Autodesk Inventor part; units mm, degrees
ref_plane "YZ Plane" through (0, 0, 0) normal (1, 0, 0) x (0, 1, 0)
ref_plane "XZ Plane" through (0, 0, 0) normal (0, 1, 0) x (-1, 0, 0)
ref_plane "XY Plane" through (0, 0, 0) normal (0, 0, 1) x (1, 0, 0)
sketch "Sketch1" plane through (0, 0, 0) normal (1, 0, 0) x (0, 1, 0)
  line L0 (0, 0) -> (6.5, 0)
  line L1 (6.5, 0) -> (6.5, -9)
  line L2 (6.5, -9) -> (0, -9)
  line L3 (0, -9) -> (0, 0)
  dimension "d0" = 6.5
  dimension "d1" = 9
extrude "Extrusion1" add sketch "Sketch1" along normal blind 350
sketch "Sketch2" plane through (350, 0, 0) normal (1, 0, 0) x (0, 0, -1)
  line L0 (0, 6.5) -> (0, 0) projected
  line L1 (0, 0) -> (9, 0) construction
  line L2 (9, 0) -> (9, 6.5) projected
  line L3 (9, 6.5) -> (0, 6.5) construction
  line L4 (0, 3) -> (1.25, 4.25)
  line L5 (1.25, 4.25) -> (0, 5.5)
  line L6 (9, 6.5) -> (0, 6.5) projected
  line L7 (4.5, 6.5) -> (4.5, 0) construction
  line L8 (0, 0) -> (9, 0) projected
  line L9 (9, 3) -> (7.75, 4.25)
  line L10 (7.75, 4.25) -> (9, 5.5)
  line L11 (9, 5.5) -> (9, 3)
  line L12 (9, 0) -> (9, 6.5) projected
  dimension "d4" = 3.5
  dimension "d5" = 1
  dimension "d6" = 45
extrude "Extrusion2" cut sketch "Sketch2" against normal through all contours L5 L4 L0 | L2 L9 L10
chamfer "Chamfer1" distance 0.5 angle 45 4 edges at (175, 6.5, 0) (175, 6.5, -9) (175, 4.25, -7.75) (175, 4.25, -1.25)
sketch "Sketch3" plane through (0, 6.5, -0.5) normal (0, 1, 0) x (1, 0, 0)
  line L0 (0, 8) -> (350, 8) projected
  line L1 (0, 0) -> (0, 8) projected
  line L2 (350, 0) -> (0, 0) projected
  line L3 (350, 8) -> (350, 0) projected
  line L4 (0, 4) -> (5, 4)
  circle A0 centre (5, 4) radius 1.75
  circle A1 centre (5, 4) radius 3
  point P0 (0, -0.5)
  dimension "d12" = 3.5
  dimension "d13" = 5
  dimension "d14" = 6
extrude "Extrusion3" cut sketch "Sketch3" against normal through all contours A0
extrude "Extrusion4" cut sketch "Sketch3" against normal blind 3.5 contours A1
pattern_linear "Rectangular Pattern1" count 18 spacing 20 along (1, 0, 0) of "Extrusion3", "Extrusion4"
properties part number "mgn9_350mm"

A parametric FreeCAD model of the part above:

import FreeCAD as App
import Part
import Sketcher


def edges_at(feature, points):
    """Names of the edges that pass closest to the given points."""
    edges = feature.Shape.Edges
    near = lambda p: min(range(len(edges)), key=lambda i: edges[i].distToShape(Part.Vertex(*p))[0])
    return sorted({f"Edge{near(p) + 1}" for p in points})

doc = App.newDocument("Part")
body = doc.addObject("PartDesign::Body", "Body")

# Sketch on YZ plane
sketch1 = body.newObject("Sketcher::SketchObject", "Sketch")
sketch1.AttachmentSupport = (doc.getObject("YZ_Plane"), [""])
sketch1.MapMode = "FlatFace"
sketch1.addGeometry([
    Part.LineSegment(App.Vector(6, 0, 0), App.Vector(0, 0, 0)),
    Part.LineSegment(App.Vector(0, 0, 0), App.Vector(0, -9, 0)),
    Part.LineSegment(App.Vector(0, -9, 0), App.Vector(6, -9, 0)),
    Part.LineSegment(App.Vector(6, -9, 0), App.Vector(6, 0, 0)),
], False)
sketch1.addConstraint([
    Sketcher.Constraint("Coincident", 0, 2, 1, 1),
    Sketcher.Constraint("Coincident", 1, 2, 2, 1),
    Sketcher.Constraint("Coincident", 2, 2, 3, 1),
    Sketcher.Constraint("Coincident", 3, 2, 0, 1),
    Sketcher.Constraint("Horizontal", 0),
    Sketcher.Constraint("Vertical", 1),
    Sketcher.Constraint("Horizontal", 2),
    Sketcher.Constraint("Vertical", 3),
    Sketcher.Constraint("Coincident", 0, 2, -1, 1),
    Sketcher.Constraint("DistanceY", 1, 2, 1, 1, 9.0),
    Sketcher.Constraint("DistanceX", 0, 2, 0, 1, 6.5),
])
pad1 = body.newObject("PartDesign::Pad", "Pad")
pad1.Profile = sketch1
pad1.Length = 350

# Sketch on YZ plane
sketch2 = body.newObject("Sketcher::SketchObject", "Sketch001")
sketch2.AttachmentSupport = (doc.getObject("YZ_Plane"), [""])
sketch2.MapMode = "FlatFace"
sketch2.AttachmentOffset = App.Placement(App.Vector(0, 0, 350), App.Rotation())
sketch2.addGeometry([
    Part.LineSegment(App.Vector(4.2, -1.2, 0), App.Vector(5.5, 0, 0)),  # 0
    Part.LineSegment(App.Vector(5.5, 0, 0), App.Vector(3, 0, 0)),  # 1
    Part.LineSegment(App.Vector(3, 0, 0), App.Vector(4.2, -1.2, 0)),  # 2
    Part.LineSegment(App.Vector(3, -9, 0), App.Vector(5.5, -9, 0)),  # 3
    Part.LineSegment(App.Vector(5.5, -9, 0), App.Vector(4.2, -7.8, 0)),  # 4
    Part.LineSegment(App.Vector(4.2, -7.8, 0), App.Vector(3, -9, 0)),  # 5
], False)
sketch2.addConstraint([
    Sketcher.Constraint("Coincident", 0, 2, 1, 1),
    Sketcher.Constraint("Coincident", 1, 2, 2, 1),
    Sketcher.Constraint("Coincident", 2, 2, 0, 1),
    Sketcher.Constraint("Coincident", 3, 2, 4, 1),
    Sketcher.Constraint("Coincident", 4, 2, 5, 1),
    Sketcher.Constraint("Coincident", 5, 2, 3, 1),
    Sketcher.Constraint("Horizontal", 1),
    Sketcher.Constraint("Horizontal", 3),
    Sketcher.Constraint("PointOnObject", 0, 2, -1),
    Sketcher.Constraint("Perpendicular", 0, 2),
    Sketcher.Constraint("Parallel", 2, 4),
    Sketcher.Constraint("Perpendicular", 4, 5),
    Sketcher.Constraint("Vertical", 0, 2, 3, 2),
    Sketcher.Constraint("Vertical", 2, 2, 4, 2),
    Sketcher.Constraint("Vertical", 1, 2, 5, 2),
    Sketcher.Constraint("DistanceX", 1, 2, 1, 1, 2.5),
    Sketcher.Constraint("DistanceX", -1, 1, 1, 2, 3.0),
    Sketcher.Constraint("DistanceY", 3, 2, -1, 1, 9.0),
])
pocket1 = body.newObject("PartDesign::Pocket", "Pocket")
pocket1.Profile = sketch2
pocket1.Type = "ThroughAll"
doc.recompute()

chamfer = body.newObject("PartDesign::Chamfer", "Chamfer")
chamfer.Base = (pocket1, edges_at(pocket1, [
    (175, 6.5, 0),
    (175, 6.5, -9),
    (175, 4.25, -7.75),
    (175, 4.25, -1.25),
]))
chamfer.Size = 0.5

# Sketch on XZ plane
sketch3 = body.newObject("Sketcher::SketchObject", "Sketch002")
sketch3.AttachmentSupport = (doc.getObject("XZ_Plane"), [""])
sketch3.MapMode = "FlatFace"
sketch3.AttachmentOffset = App.Placement(App.Vector(0, 0, -6.5), App.Rotation())
sketch3.addGeometry(Part.Circle(App.Vector(5, -4.5, 0), App.Vector(0, 0, 1), 1.8), False)
sketch3.addConstraint([
    Sketcher.Constraint("Diameter", 0, 3.5),
    Sketcher.Constraint("DistanceX", -1, 1, 0, 3, 5.0),
    Sketcher.Constraint("DistanceY", 0, 3, -1, 1, 4.5),
])
pocket2 = body.newObject("PartDesign::Pocket", "Pocket001")
pocket2.Profile = sketch3
pocket2.Type = "ThroughAll"
pocket2.Reversed = True

# Sketch on XZ plane
sketch4 = body.newObject("Sketcher::SketchObject", "Sketch003")
sketch4.AttachmentSupport = (doc.getObject("XZ_Plane"), [""])
sketch4.MapMode = "FlatFace"
sketch4.AttachmentOffset = App.Placement(App.Vector(0, 0, -6.5), App.Rotation())
sketch4.addGeometry([
    Part.Circle(App.Vector(5, -4.5, 0), App.Vector(0, 0, 1), 3),
    Part.Circle(App.Vector(5, -4.5, 0), App.Vector(0, 0, 1), 1.8),
], False)
sketch4.addConstraint([
    Sketcher.Constraint("Coincident", 1, 3, 0, 3),
    Sketcher.Constraint("Diameter", 0, 6.0),
    Sketcher.Constraint("Diameter", 1, 3.5),
    Sketcher.Constraint("DistanceX", -1, 1, 0, 3, 5.0),
    Sketcher.Constraint("DistanceY", 0, 3, -1, 1, 4.5),
])
pocket3 = body.newObject("PartDesign::Pocket", "Pocket002")
pocket3.Profile = sketch4
pocket3.Length = 3.5
pocket3.Reversed = True
doc.recompute()

linearpattern = body.newObject("PartDesign::LinearPattern", "LinearPattern")
linearpattern.Originals = [pocket2, pocket3]
linearpattern.Direction = (doc.getObject("X_Axis"), [""])
linearpattern.Mode = "offset"
linearpattern.Offset = 20
linearpattern.Occurrences = 18
body.Tip = linearpattern

doc.recompute()
